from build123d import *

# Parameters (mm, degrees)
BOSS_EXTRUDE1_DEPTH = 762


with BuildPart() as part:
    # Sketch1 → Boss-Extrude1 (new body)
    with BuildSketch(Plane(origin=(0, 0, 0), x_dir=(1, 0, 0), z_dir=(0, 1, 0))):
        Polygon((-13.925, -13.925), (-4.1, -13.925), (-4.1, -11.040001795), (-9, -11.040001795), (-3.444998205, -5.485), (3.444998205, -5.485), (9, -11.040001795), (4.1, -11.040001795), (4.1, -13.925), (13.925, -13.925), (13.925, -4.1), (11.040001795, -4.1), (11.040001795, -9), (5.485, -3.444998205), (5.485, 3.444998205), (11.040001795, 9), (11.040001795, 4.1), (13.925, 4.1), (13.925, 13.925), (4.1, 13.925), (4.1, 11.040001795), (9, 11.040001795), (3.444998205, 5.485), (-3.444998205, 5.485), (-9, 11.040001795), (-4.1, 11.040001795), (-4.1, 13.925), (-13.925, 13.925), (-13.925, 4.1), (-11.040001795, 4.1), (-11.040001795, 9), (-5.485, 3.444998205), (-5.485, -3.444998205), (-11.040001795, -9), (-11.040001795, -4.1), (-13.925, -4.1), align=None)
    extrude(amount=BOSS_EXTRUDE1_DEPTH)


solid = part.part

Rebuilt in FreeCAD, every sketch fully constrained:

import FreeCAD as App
import Part
import Sketcher

V = App.Vector
Q = App.Units.Quantity

doc = App.newDocument("Part")
body = doc.addObject("PartDesign::Body", "Body")

# Sketch on XZ plane
sketch1 = body.newObject("Sketcher::SketchObject", "Sketch")
sketch1.AttachmentSupport = (doc.getObject("XZ_Plane"), [""])
sketch1.MapMode = "FlatFace"
sketch1.addGeometry([
    Part.LineSegment(V(-13.925, 13.925, 0), V(-4.1, 13.925, 0)),  # 0
    Part.LineSegment(V(-4.1, 13.925, 0), V(-4.1, 11.040002, 0)),  # 1
    Part.LineSegment(V(-4.1, 11.040002, 0), V(-9, 11.040002, 0)),  # 2
    Part.LineSegment(V(-9, 11.040002, 0), V(-3.444998, 5.485, 0)),  # 3
    Part.LineSegment(V(-3.444998, 5.485, 0), V(3.444998, 5.485, 0)),  # 4
    Part.LineSegment(V(3.444998, 5.485, 0), V(9, 11.040002, 0)),  # 5
    Part.LineSegment(V(9, 11.040002, 0), V(4.1, 11.040002, 0)),  # 6
    Part.LineSegment(V(4.1, 11.040002, 0), V(4.1, 13.925, 0)),  # 7
    Part.LineSegment(V(4.1, 13.925, 0), V(13.925, 13.925, 0)),  # 8
    Part.LineSegment(V(13.925, 13.925, 0), V(13.925, 4.1, 0)),  # 9
    Part.LineSegment(V(13.925, 4.1, 0), V(11.040002, 4.1, 0)),  # 10
    Part.LineSegment(V(11.040002, 4.1, 0), V(11.040002, 9, 0)),  # 11
    Part.LineSegment(V(11.040002, 9, 0), V(5.485, 3.444998, 0)),  # 12
    Part.LineSegment(V(5.485, 3.444998, 0), V(5.485, -3.444998, 0)),  # 13
    Part.LineSegment(V(5.485, -3.444998, 0), V(11.040002, -9, 0)),  # 14
    Part.LineSegment(V(11.040002, -9, 0), V(11.040002, -4.1, 0)),  # 15
    Part.LineSegment(V(11.040002, -4.1, 0), V(13.925, -4.1, 0)),  # 16
    Part.LineSegment(V(13.925, -4.1, 0), V(13.925, -13.925, 0)),  # 17
    Part.LineSegment(V(13.925, -13.925, 0), V(4.1, -13.925, 0)),  # 18
    Part.LineSegment(V(4.1, -13.925, 0), V(4.1, -11.040002, 0)),  # 19
    Part.LineSegment(V(4.1, -11.040002, 0), V(9, -11.040002, 0)),  # 20
    Part.LineSegment(V(9, -11.040002, 0), V(3.444998, -5.485, 0)),  # 21
    Part.LineSegment(V(3.444998, -5.485, 0), V(-3.444998, -5.485, 0)),  # 22
    Part.LineSegment(V(-3.444998, -5.485, 0), V(-9, -11.040002, 0)),  # 23
    Part.LineSegment(V(-9, -11.040002, 0), V(-4.1, -11.040002, 0)),  # 24
    Part.LineSegment(V(-4.1, -11.040002, 0), V(-4.1, -13.925, 0)),  # 25
    Part.LineSegment(V(-4.1, -13.925, 0), V(-13.925, -13.925, 0)),  # 26
    Part.LineSegment(V(-13.925, -13.925, 0), V(-13.925, -4.1, 0)),  # 27
    Part.LineSegment(V(-13.925, -4.1, 0), V(-11.040002, -4.1, 0)),  # 28
    Part.LineSegment(V(-11.040002, -4.1, 0), V(-11.040002, -9, 0)),  # 29
    Part.LineSegment(V(-11.040002, -9, 0), V(-5.485, -3.444998, 0)),  # 30
    Part.LineSegment(V(-5.485, -3.444998, 0), V(-5.485, 3.444998, 0)),  # 31
    Part.LineSegment(V(-5.485, 3.444998, 0), V(-11.040002, 9, 0)),  # 32
    Part.LineSegment(V(-11.040002, 9, 0), V(-11.040002, 4.1, 0)),  # 33
    Part.LineSegment(V(-11.040002, 4.1, 0), V(-13.925, 4.1, 0)),  # 34
    Part.LineSegment(V(-13.925, 4.1, 0), V(-13.925, 13.925, 0)),  # 35
], False)
sketch1.addConstraint([
    Sketcher.Constraint("Coincident", 0, 2, 1, 1),
    Sketcher.Constraint("Coincident", 1, 2, 2, 1),
    Sketcher.Constraint("Coincident", 2, 2, 3, 1),
    Sketcher.Constraint("Coincident", 3, 2, 4, 1),
    Sketcher.Constraint("Coincident", 4, 2, 5, 1),
    Sketcher.Constraint("Coincident", 5, 2, 6, 1),
    Sketcher.Constraint("Coincident", 6, 2, 7, 1),
    Sketcher.Constraint("Coincident", 7, 2, 8, 1),
    Sketcher.Constraint("Coincident", 8, 2, 9, 1),
    Sketcher.Constraint("Coincident", 9, 2, 10, 1),
    Sketcher.Constraint("Coincident", 10, 2, 11, 1),
    Sketcher.Constraint("Coincident", 11, 2, 12, 1),
    Sketcher.Constraint("Coincident", 12, 2, 13, 1),
    Sketcher.Constraint("Coincident", 13, 2, 14, 1),
    Sketcher.Constraint("Coincident", 14, 2, 15, 1),
    Sketcher.Constraint("Coincident", 15, 2, 16, 1),
    Sketcher.Constraint("Coincident", 16, 2, 17, 1),
    Sketcher.Constraint("Coincident", 17, 2, 18, 1),
    Sketcher.Constraint("Coincident", 18, 2, 19, 1),
    Sketcher.Constraint("Coincident", 19, 2, 20, 1),
    Sketcher.Constraint("Coincident", 20, 2, 21, 1),
    Sketcher.Constraint("Coincident", 21, 2, 22, 1),
    Sketcher.Constraint("Coincident", 22, 2, 23, 1),
    Sketcher.Constraint("Coincident", 23, 2, 24, 1),
    Sketcher.Constraint("Coincident", 24, 2, 25, 1),
    Sketcher.Constraint("Coincident", 25, 2, 26, 1),
    Sketcher.Constraint("Coincident", 26, 2, 27, 1),
    Sketcher.Constraint("Coincident", 27, 2, 28, 1),
    Sketcher.Constraint("Coincident", 28, 2, 29, 1),
    Sketcher.Constraint("Coincident", 29, 2, 30, 1),
    Sketcher.Constraint("Coincident", 30, 2, 31, 1),
    Sketcher.Constraint("Coincident", 31, 2, 32, 1),
    Sketcher.Constraint("Coincident", 32, 2, 33, 1),
    Sketcher.Constraint("Coincident", 33, 2, 34, 1),
    Sketcher.Constraint("Coincident", 34, 2, 35, 1),
    Sketcher.Constraint("Coincident", 35, 2, 0, 1),
    Sketcher.Constraint("Horizontal", 0),
    Sketcher.Constraint("Vertical", 1),
    Sketcher.Constraint("Horizontal", 2),
    Sketcher.Constraint("Horizontal", 4),
    Sketcher.Constraint("Horizontal", 6),
    Sketcher.Constraint("Vertical", 7),
    Sketcher.Constraint("Horizontal", 8),
    Sketcher.Constraint("Vertical", 9),
    Sketcher.Constraint("Horizontal", 10),
    Sketcher.Constraint("Vertical", 11),
    Sketcher.Constraint("Vertical", 13),
    Sketcher.Constraint("Vertical", 15),
    Sketcher.Constraint("Horizontal", 16),
    Sketcher.Constraint("Vertical", 17),
    Sketcher.Constraint("Horizontal", 18),
    Sketcher.Constraint("Vertical", 19),
    Sketcher.Constraint("Horizontal", 20),
    Sketcher.Constraint("Horizontal", 22),
    Sketcher.Constraint("Horizontal", 24),
    Sketcher.Constraint("Vertical", 25),
    Sketcher.Constraint("Horizontal", 26),
    Sketcher.Constraint("Vertical", 27),
    Sketcher.Constraint("Horizontal", 28),
    Sketcher.Constraint("Vertical", 29),
    Sketcher.Constraint("Vertical", 31),
    Sketcher.Constraint("Vertical", 33),
    Sketcher.Constraint("Horizontal", 34),
    Sketcher.Constraint("Vertical", 35),
    Sketcher.Constraint("Symmetric", 0, 2, 18, 2, -1, 1),
    Sketcher.Constraint("Symmetric", 2, 2, 20, 2, -1, 1),
    Sketcher.Constraint("Symmetric", 3, 2, 21, 2, -1, 1),
    Sketcher.Constraint("Symmetric", 5, 2, 23, 2, -1, 1),
    Sketcher.Constraint("Symmetric", 7, 2, 25, 2, -1, 1),
    Sketcher.Constraint("Symmetric", 9, 2, 27, 2, -1, 1),
    Sketcher.Constraint("Symmetric", 11, 2, 29, 2, -1, 1),
    Sketcher.Constraint("Symmetric", 12, 2, 30, 2, -1, 1),
    Sketcher.Constraint("Symmetric", 14, 2, 32, 2, -1, 1),
    Sketcher.Constraint("Symmetric", 16, 2, 34, 2, -1, 1),
    Sketcher.Constraint("Symmetric", 2, 2, 5, 2, -2),
    Sketcher.Constraint("Symmetric", 0, 2, 7, 2, -2),
    Sketcher.Constraint("Symmetric", 16, 2, 27, 2, -2),
    Sketcher.Constraint("Symmetric", 14, 2, 29, 2, -2),
    Sketcher.Constraint("Perpendicular", 3, 5),
    Sketcher.Constraint("Parallel", 5, 12),
    Sketcher.Constraint("Perpendicular", 12, 14),
    Sketcher.Constraint("Perpendicular", 21, 23),
    Sketcher.Constraint("Perpendicular", 30, 32),
    Sketcher.Constraint("Horizontal", 13, 2, 30, 2),
    Sketcher.Constraint("Equal", 34, 1),
    Sketcher.Constraint("Equal", 26, 9),
    Sketcher.Constraint("Equal", 24, 11),
    Sketcher.Constraint("Equal", 22, 13),
    Sketcher.Constraint("Equal", 5, 12),
    Sketcher.Constraint("DistanceX", 2, 2, 2, 1, Q("4.9 mm")),
    Sketcher.Constraint("DistanceX", 2, 2, -1, 1, Q("9 mm")),
    Sketcher.Constraint("DistanceX", 0, 1, 0, 2, Q("9.825 mm")),
    Sketcher.Constraint("DistanceX", 10, 2, 10, 1, Q("2.884998 mm")),
    Sketcher.Constraint("DistanceY", 3, 2, 0, 2, Q("8.44 mm")),
])
pad1 = body.newObject("PartDesign::Pad", "Pad")
pad1.Profile = sketch1
pad1.Length = 762
pad1.Reversed = True

doc.recompute()
